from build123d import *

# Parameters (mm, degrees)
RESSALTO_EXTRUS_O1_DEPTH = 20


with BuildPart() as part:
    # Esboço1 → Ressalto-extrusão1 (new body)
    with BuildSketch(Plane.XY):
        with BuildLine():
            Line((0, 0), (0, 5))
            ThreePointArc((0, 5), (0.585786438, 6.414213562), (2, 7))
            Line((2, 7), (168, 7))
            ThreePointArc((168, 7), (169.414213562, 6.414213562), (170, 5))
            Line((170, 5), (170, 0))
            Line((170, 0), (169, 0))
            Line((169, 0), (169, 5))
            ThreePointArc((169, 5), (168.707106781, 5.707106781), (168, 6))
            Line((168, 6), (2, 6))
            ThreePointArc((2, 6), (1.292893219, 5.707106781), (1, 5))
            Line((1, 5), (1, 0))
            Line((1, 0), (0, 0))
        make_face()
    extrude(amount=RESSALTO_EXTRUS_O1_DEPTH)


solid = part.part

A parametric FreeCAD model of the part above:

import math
import FreeCAD as App
import Part
import Sketcher

doc = App.newDocument("Part")
body = doc.addObject("PartDesign::Body", "Body")

# Sketch on XY plane
sketch1 = body.newObject("Sketcher::SketchObject", "Sketch")
sketch1.AttachmentSupport = (doc.getObject("XY_Plane"), [""])
sketch1.MapMode = "FlatFace"
sketch1.addGeometry([
    Part.LineSegment(App.Vector(0, 5, 0), App.Vector(0, 0, 0)),  # 0
    Part.LineSegment(App.Vector(0, 0, 0), App.Vector(1, 0, 0)),  # 1
    Part.LineSegment(App.Vector(1, 0, 0), App.Vector(1, 5, 0)),  # 2
    Part.ArcOfCircle(Part.Circle(App.Vector(2, 5, 0), App.Vector(0, 0, 1), 1), math.radians(90), math.radians(180)),  # 3
    Part.LineSegment(App.Vector(2, 6, 0), App.Vector(168, 6, 0)),  # 4
    Part.ArcOfCircle(Part.Circle(App.Vector(168, 5, 0), App.Vector(0, 0, 1), 1), math.radians(0), math.radians(90)),  # 5
    Part.LineSegment(App.Vector(169, 5, 0), App.Vector(169, 0, 0)),  # 6
    Part.LineSegment(App.Vector(169, 0, 0), App.Vector(170, 0, 0)),  # 7
    Part.LineSegment(App.Vector(170, 0, 0), App.Vector(170, 5, 0)),  # 8
    Part.ArcOfCircle(Part.Circle(App.Vector(168, 5, 0), App.Vector(0, 0, 1), 2), math.radians(0), math.radians(90)),  # 9
    Part.LineSegment(App.Vector(168, 7, 0), App.Vector(2, 7, 0)),  # 10
    Part.ArcOfCircle(Part.Circle(App.Vector(2, 5, 0), App.Vector(0, 0, 1), 2), math.radians(90), math.radians(180)),  # 11
], False)
sketch1.addConstraint([
    Sketcher.Constraint("Coincident", 0, 2, 1, 1),
    Sketcher.Constraint("Coincident", 1, 2, 2, 1),
    Sketcher.Constraint("Tangent", 2, 2, 3, 2),
    Sketcher.Constraint("Tangent", 3, 1, 4, 1),
    Sketcher.Constraint("Tangent", 4, 2, 5, 2),
    Sketcher.Constraint("Tangent", 5, 1, 6, 1),
    Sketcher.Constraint("Coincident", 6, 2, 7, 1),
    Sketcher.Constraint("Coincident", 7, 2, 8, 1),
    Sketcher.Constraint("Tangent", 8, 2, 9, 1),
    Sketcher.Constraint("Tangent", 9, 2, 10, 1),
    Sketcher.Constraint("Tangent", 10, 2, 11, 1),
    Sketcher.Constraint("Tangent", 11, 2, 0, 1),
    Sketcher.Constraint("Vertical", 0),
    Sketcher.Constraint("Horizontal", 1),
    Sketcher.Constraint("Vertical", 2),
    Sketcher.Constraint("Horizontal", 4),
    Sketcher.Constraint("Vertical", 6),
    Sketcher.Constraint("Horizontal", 7),
    Sketcher.Constraint("Vertical", 8),
    Sketcher.Constraint("Horizontal", 10),
    Sketcher.Constraint("Coincident", 0, 2, -1, 1),
    Sketcher.Constraint("Coincident", 9, 3, 5, 3),
    Sketcher.Constraint("Coincident", 11, 3, 3, 3),
    Sketcher.Constraint("Equal", 3, 5),
    Sketcher.Constraint("PointOnObject", 6, 2, -1),
    Sketcher.Constraint("Radius", 3, 1.0),
    Sketcher.Constraint("Radius", 9, 2.0),
    Sketcher.Constraint("DistanceX", 4, 1, 4, 2, 166.0),
    Sketcher.Constraint("DistanceY", 0, 2, 0, 1, 5.0),
])
pad1 = body.newObject("PartDesign::Pad", "Pad")
pad1.Profile = sketch1
pad1.Length = 20

doc.recompute()
